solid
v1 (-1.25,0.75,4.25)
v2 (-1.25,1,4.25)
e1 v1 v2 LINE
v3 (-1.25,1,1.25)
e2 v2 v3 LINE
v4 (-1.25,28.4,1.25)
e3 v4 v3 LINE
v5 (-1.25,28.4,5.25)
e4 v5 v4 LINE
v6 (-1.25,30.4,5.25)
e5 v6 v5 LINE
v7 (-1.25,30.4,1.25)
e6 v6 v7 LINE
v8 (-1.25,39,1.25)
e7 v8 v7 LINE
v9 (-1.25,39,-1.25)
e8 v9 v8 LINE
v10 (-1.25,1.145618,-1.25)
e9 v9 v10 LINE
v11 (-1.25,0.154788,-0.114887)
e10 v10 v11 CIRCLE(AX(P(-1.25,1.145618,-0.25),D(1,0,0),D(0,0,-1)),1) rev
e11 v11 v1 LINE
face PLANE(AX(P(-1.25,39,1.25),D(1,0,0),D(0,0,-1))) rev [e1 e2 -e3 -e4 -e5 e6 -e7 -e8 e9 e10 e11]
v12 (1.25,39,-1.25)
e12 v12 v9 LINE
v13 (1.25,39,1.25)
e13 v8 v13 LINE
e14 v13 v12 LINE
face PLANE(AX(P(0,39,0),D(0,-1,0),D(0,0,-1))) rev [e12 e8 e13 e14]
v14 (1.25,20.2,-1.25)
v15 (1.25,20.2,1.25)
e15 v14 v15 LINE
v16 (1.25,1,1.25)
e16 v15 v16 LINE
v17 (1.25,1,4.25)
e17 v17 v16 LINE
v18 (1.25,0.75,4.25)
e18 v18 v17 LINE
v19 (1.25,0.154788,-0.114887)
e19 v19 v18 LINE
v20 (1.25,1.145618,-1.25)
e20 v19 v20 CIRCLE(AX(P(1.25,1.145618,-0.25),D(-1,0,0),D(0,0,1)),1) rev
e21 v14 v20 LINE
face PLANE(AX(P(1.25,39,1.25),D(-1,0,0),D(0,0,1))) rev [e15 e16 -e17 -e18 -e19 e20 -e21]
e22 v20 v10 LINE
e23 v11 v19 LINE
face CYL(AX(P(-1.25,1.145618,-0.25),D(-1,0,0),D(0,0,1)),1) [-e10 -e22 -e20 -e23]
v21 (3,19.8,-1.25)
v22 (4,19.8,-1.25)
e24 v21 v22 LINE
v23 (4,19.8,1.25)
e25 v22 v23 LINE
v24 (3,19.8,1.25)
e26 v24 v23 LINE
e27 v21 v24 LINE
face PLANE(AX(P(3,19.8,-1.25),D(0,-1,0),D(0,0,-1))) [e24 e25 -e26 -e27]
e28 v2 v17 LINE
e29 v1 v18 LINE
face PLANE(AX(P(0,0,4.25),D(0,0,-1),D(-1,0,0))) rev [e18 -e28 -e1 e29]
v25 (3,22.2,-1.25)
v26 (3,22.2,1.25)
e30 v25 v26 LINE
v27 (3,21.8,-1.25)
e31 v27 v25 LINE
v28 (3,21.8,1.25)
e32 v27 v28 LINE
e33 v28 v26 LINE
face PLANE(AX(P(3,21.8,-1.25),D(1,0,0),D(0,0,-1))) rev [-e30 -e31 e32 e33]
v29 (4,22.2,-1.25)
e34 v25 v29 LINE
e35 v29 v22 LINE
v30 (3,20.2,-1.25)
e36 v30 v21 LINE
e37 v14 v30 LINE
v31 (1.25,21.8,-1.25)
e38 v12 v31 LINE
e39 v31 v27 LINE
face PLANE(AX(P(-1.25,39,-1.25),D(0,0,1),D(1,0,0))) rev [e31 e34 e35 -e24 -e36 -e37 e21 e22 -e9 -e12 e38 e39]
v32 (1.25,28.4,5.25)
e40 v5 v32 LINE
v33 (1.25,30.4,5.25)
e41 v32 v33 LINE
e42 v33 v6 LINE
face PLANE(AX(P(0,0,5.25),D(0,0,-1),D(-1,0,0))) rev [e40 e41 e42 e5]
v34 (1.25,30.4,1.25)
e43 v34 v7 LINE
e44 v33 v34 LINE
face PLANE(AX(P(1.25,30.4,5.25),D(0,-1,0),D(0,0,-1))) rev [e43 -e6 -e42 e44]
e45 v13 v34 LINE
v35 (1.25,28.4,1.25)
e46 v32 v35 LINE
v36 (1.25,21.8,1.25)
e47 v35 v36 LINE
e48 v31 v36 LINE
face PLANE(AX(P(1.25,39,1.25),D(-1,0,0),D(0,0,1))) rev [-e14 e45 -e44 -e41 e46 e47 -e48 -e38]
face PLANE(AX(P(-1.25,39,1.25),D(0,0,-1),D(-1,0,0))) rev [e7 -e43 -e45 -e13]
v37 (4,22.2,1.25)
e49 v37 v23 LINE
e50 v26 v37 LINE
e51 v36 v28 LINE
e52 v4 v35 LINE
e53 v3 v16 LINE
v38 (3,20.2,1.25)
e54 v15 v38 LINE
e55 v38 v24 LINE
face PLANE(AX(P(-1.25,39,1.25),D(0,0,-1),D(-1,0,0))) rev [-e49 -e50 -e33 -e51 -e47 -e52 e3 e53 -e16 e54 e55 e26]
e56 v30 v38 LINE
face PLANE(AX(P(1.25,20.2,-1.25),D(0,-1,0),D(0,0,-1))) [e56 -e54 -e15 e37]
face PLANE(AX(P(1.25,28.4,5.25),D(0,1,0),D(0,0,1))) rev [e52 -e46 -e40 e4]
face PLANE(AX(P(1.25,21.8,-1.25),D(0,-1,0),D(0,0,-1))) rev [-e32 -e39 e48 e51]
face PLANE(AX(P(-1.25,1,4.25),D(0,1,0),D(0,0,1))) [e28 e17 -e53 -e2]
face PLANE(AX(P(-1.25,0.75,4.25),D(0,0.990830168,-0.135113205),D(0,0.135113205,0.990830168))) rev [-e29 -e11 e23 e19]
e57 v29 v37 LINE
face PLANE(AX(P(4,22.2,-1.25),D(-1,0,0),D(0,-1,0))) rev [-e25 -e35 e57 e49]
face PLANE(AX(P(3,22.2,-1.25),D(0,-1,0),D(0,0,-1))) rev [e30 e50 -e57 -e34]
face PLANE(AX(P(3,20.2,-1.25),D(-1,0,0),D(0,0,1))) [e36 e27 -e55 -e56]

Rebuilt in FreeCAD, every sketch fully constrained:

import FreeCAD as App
import Part
import Sketcher

V = App.Vector


def edges_at(feature, points):
    """Names of the edges that pass closest to the given points."""
    edges = feature.Shape.Edges
    near = lambda p: min(range(len(edges)), key=lambda i: edges[i].distToShape(Part.Vertex(*p))[0])
    return sorted({f"Edge{near(p) + 1}" for p in points})


def add_polygon(sketch, points):
    """Adds a closed chain of lines whose ends are joined by coincident constraints."""
    first, n = sketch.GeometryCount, len(points)
    for a, b in zip(points, points[1:] + points[:1]):
        sketch.addGeometry(Part.LineSegment(App.Vector(*a, 0), App.Vector(*b, 0)), False)
    for i in range(n):
        sketch.addConstraint(Sketcher.Constraint("Coincident", first + i, 2, first + (i + 1) % n, 1))

doc = App.newDocument("Part")
params = doc.addObject("Spreadsheet::Sheet", "Params")
for row, (alias, value) in enumerate([
    ("sketch1_width", "2.5 mm"),
    ("pad1_length", "39 mm"),
    ("sketch2_height", "1 mm"),
    ("sketch2_width", "2.5 mm"),
    ("pad2_length", "3 mm"),
    ("sketch3_height", "5.5 mm"),
    ("sketch3_width", "0.75 mm"),
    ("pocket1_length", "2.5 mm"),
    ("fillet_radius", "1 mm"),
    ("sketch4_width", "1 mm"),
    ("sketch4_height", "1.6 mm"),
    ("sketch4_height2", "0.4 mm"),
    ("sketch4_width2", "1.75 mm"),
    ("pad3_length", "2.5 mm"),
    ("sketch5_height", "2 mm"),
    ("sketch5_width", "2.5 mm"),
    ("pad4_length", "4 mm"),
], start=1):
    params.set(f"A{row}", alias)
    params.set(f"B{row}", "=" + value)
    params.setAlias(f"B{row}", alias)

body = doc.addObject("PartDesign::Body", "Body")

sketch1 = body.newObject("Sketcher::SketchObject", "Sketch")
sketch1.AttachmentSupport = (doc.getObject("XZ_Plane"), [""])
sketch1.MapMode = "FlatFace"
add_polygon(sketch1, [(-1.2, -1.2), (-1.2, 1.2), (1.2, 1.2), (1.2, -1.2)])
sketch1.addConstraint(Sketcher.Constraint("Vertical", 0))
sketch1.addConstraint(Sketcher.Constraint("Horizontal", 1))
sketch1.addConstraint(Sketcher.Constraint("Vertical", 2))
sketch1.addConstraint(Sketcher.Constraint("Horizontal", 3))
sketch1.addConstraint(Sketcher.Constraint("Symmetric", 0, 2, 2, 2, -1, 1))
sketch1.addConstraint(Sketcher.Constraint("Equal", 3, 0))
sketch1.addConstraint(Sketcher.Constraint("DistanceX", 1, 1, 1, 2, 2.5))
sketch1.setExpression("Constraints[10]", "Params.sketch1_width")
pad1 = body.newObject("PartDesign::Pad", "Pad")
pad1.Profile = sketch1
pad1.setExpression("Length", "Params.pad1_length")
pad1.Reversed = True

sketch2 = body.newObject("Sketcher::SketchObject", "Sketch001")
sketch2.AttachmentSupport = (doc.getObject("XY_Plane"), [""])
sketch2.MapMode = "FlatFace"
sketch2.AttachmentOffset = App.Placement(V(0, 0, 1.25), App.Rotation())
add_polygon(sketch2, [(-1.2, 1), (-1.2, 0), (1.2, 0), (1.2, 1)])
sketch2.addConstraint(Sketcher.Constraint("Vertical", 0))
sketch2.addConstraint(Sketcher.Constraint("Horizontal", 1))
sketch2.addConstraint(Sketcher.Constraint("Vertical", 2))
sketch2.addConstraint(Sketcher.Constraint("Horizontal", 3))
sketch2.addConstraint(Sketcher.Constraint("Symmetric", 0, 2, 1, 2, -1, 1))
sketch2.addConstraint(Sketcher.Constraint("DistanceY", 0, 2, 0, 1, 1.0))
sketch2.addConstraint(Sketcher.Constraint("DistanceX", 1, 1, 1, 2, 2.5))
sketch2.setExpression("Constraints[9]", "Params.sketch2_height")
sketch2.setExpression("Constraints[10]", "Params.sketch2_width")
pad2 = body.newObject("PartDesign::Pad", "Pad001")
pad2.Profile = sketch2
pad2.setExpression("Length", "Params.pad2_length")

sketch3 = body.newObject("Sketcher::SketchObject", "Sketch002")
sketch3.AttachmentSupport = (doc.getObject("YZ_Plane"), [""])
sketch3.MapMode = "FlatFace"
sketch3.AttachmentOffset = App.Placement(V(0, 0, 1.25), App.Rotation())
add_polygon(sketch3, [(0.8, 4.2), (0, 4.2), (0, -1.2)])
sketch3.addConstraint(Sketcher.Constraint("Horizontal", 0))
sketch3.addConstraint(Sketcher.Constraint("Vertical", 1))
sketch3.addConstraint(Sketcher.Constraint("PointOnObject", 0, 2, -2))
sketch3.addConstraint(Sketcher.Constraint("DistanceY", 1, 2, 1, 1, 5.5))
sketch3.addConstraint(Sketcher.Constraint("DistanceX", 0, 2, 0, 1, 0.75))
sketch3.addConstraint(Sketcher.Constraint("DistanceY", -1, 1, 0, 2, 4.25))
sketch3.setExpression("Constraints[6]", "Params.sketch3_height")
sketch3.setExpression("Constraints[7]", "Params.sketch3_width")
pocket1 = body.newObject("PartDesign::Pocket", "Pocket")
pocket1.Profile = sketch3
pocket1.setExpression("Length", "Params.pocket1_length")
doc.recompute()

fillet = body.newObject("PartDesign::Fillet", "Fillet")
fillet.Base = (pocket1, edges_at(pocket1, [(0, 0, -1.25)]))
fillet.setExpression("Radius", "Params.fillet_radius")

sketch4 = body.newObject("Sketcher::SketchObject", "Sketch003")
sketch4.AttachmentSupport = (doc.getObject("XY_Plane"), [""])
sketch4.MapMode = "FlatFace"
sketch4.AttachmentOffset = App.Placement(V(0, 0, 1.25), App.Rotation())
add_polygon(sketch4, [(1.25, 21.8), (1.25, 20.2), (3, 20.2), (3, 19.8), (4, 19.8), (4, 22.2), (3, 22.2), (3, 21.8)])
sketch4.addConstraint(Sketcher.Constraint("Vertical", 0))
sketch4.addConstraint(Sketcher.Constraint("Horizontal", 1))
sketch4.addConstraint(Sketcher.Constraint("Vertical", 2))
sketch4.addConstraint(Sketcher.Constraint("Horizontal", 3))
sketch4.addConstraint(Sketcher.Constraint("Vertical", 4))
sketch4.addConstraint(Sketcher.Constraint("Horizontal", 5))
sketch4.addConstraint(Sketcher.Constraint("Vertical", 6))
sketch4.addConstraint(Sketcher.Constraint("Horizontal", 7))
sketch4.addConstraint(Sketcher.Constraint("Vertical", 2, 2, 5, 2))
sketch4.addConstraint(Sketcher.Constraint("Equal", 2, 6))
sketch4.addConstraint(Sketcher.Constraint("DistanceX", 3, 1, 3, 2, 1.0))
sketch4.addConstraint(Sketcher.Constraint("DistanceY", 0, 2, 0, 1, 1.6))
sketch4.addConstraint(Sketcher.Constraint("DistanceY", 2, 2, 2, 1, 0.4))
sketch4.addConstraint(Sketcher.Constraint("DistanceX", -1, 1, 1, 2, 3.0))
sketch4.addConstraint(Sketcher.Constraint("DistanceX", 1, 1, 1, 2, 1.75))
sketch4.addConstraint(Sketcher.Constraint("DistanceY", -1, 1, 0, 2, 20.2))
sketch4.setExpression("Constraints[18]", "Params.sketch4_width")
sketch4.setExpression("Constraints[19]", "Params.sketch4_height")
sketch4.setExpression("Constraints[20]", "Params.sketch4_height2")
sketch4.setExpression("Constraints[22]", "Params.sketch4_width2")
pad3 = body.newObject("PartDesign::Pad", "Pad002")
pad3.Profile = sketch4
pad3.setExpression("Length", "Params.pad3_length")
pad3.Reversed = True

sketch5 = body.newObject("Sketcher::SketchObject", "Sketch004")
sketch5.AttachmentSupport = (doc.getObject("XY_Plane"), [""])
sketch5.MapMode = "FlatFace"
sketch5.AttachmentOffset = App.Placement(V(0, 0, 1.25), App.Rotation())
add_polygon(sketch5, [(-1.2, 30.4), (-1.2, 28.4), (1.2, 28.4), (1.2, 30.4)])
sketch5.addConstraint(Sketcher.Constraint("Vertical", 0))
sketch5.addConstraint(Sketcher.Constraint("Horizontal", 1))
sketch5.addConstraint(Sketcher.Constraint("Vertical", 2))
sketch5.addConstraint(Sketcher.Constraint("Horizontal", 3))
sketch5.addConstraint(Sketcher.Constraint("DistanceY", 0, 2, 0, 1, 2.0))
sketch5.addConstraint(Sketcher.Constraint("DistanceX", 1, 1, 1, 2, 2.5))
sketch5.addConstraint(Sketcher.Constraint("DistanceY", -1, 1, 0, 2, 28.4))
sketch5.addConstraint(Sketcher.Constraint("DistanceX", 0, 2, -1, 1, 1.25))
sketch5.setExpression("Constraints[8]", "Params.sketch5_height")
sketch5.setExpression("Constraints[9]", "Params.sketch5_width")
pad4 = body.newObject("PartDesign::Pad", "Pad003")
pad4.Profile = sketch5
pad4.setExpression("Length", "Params.pad4_length")

doc.recompute()
